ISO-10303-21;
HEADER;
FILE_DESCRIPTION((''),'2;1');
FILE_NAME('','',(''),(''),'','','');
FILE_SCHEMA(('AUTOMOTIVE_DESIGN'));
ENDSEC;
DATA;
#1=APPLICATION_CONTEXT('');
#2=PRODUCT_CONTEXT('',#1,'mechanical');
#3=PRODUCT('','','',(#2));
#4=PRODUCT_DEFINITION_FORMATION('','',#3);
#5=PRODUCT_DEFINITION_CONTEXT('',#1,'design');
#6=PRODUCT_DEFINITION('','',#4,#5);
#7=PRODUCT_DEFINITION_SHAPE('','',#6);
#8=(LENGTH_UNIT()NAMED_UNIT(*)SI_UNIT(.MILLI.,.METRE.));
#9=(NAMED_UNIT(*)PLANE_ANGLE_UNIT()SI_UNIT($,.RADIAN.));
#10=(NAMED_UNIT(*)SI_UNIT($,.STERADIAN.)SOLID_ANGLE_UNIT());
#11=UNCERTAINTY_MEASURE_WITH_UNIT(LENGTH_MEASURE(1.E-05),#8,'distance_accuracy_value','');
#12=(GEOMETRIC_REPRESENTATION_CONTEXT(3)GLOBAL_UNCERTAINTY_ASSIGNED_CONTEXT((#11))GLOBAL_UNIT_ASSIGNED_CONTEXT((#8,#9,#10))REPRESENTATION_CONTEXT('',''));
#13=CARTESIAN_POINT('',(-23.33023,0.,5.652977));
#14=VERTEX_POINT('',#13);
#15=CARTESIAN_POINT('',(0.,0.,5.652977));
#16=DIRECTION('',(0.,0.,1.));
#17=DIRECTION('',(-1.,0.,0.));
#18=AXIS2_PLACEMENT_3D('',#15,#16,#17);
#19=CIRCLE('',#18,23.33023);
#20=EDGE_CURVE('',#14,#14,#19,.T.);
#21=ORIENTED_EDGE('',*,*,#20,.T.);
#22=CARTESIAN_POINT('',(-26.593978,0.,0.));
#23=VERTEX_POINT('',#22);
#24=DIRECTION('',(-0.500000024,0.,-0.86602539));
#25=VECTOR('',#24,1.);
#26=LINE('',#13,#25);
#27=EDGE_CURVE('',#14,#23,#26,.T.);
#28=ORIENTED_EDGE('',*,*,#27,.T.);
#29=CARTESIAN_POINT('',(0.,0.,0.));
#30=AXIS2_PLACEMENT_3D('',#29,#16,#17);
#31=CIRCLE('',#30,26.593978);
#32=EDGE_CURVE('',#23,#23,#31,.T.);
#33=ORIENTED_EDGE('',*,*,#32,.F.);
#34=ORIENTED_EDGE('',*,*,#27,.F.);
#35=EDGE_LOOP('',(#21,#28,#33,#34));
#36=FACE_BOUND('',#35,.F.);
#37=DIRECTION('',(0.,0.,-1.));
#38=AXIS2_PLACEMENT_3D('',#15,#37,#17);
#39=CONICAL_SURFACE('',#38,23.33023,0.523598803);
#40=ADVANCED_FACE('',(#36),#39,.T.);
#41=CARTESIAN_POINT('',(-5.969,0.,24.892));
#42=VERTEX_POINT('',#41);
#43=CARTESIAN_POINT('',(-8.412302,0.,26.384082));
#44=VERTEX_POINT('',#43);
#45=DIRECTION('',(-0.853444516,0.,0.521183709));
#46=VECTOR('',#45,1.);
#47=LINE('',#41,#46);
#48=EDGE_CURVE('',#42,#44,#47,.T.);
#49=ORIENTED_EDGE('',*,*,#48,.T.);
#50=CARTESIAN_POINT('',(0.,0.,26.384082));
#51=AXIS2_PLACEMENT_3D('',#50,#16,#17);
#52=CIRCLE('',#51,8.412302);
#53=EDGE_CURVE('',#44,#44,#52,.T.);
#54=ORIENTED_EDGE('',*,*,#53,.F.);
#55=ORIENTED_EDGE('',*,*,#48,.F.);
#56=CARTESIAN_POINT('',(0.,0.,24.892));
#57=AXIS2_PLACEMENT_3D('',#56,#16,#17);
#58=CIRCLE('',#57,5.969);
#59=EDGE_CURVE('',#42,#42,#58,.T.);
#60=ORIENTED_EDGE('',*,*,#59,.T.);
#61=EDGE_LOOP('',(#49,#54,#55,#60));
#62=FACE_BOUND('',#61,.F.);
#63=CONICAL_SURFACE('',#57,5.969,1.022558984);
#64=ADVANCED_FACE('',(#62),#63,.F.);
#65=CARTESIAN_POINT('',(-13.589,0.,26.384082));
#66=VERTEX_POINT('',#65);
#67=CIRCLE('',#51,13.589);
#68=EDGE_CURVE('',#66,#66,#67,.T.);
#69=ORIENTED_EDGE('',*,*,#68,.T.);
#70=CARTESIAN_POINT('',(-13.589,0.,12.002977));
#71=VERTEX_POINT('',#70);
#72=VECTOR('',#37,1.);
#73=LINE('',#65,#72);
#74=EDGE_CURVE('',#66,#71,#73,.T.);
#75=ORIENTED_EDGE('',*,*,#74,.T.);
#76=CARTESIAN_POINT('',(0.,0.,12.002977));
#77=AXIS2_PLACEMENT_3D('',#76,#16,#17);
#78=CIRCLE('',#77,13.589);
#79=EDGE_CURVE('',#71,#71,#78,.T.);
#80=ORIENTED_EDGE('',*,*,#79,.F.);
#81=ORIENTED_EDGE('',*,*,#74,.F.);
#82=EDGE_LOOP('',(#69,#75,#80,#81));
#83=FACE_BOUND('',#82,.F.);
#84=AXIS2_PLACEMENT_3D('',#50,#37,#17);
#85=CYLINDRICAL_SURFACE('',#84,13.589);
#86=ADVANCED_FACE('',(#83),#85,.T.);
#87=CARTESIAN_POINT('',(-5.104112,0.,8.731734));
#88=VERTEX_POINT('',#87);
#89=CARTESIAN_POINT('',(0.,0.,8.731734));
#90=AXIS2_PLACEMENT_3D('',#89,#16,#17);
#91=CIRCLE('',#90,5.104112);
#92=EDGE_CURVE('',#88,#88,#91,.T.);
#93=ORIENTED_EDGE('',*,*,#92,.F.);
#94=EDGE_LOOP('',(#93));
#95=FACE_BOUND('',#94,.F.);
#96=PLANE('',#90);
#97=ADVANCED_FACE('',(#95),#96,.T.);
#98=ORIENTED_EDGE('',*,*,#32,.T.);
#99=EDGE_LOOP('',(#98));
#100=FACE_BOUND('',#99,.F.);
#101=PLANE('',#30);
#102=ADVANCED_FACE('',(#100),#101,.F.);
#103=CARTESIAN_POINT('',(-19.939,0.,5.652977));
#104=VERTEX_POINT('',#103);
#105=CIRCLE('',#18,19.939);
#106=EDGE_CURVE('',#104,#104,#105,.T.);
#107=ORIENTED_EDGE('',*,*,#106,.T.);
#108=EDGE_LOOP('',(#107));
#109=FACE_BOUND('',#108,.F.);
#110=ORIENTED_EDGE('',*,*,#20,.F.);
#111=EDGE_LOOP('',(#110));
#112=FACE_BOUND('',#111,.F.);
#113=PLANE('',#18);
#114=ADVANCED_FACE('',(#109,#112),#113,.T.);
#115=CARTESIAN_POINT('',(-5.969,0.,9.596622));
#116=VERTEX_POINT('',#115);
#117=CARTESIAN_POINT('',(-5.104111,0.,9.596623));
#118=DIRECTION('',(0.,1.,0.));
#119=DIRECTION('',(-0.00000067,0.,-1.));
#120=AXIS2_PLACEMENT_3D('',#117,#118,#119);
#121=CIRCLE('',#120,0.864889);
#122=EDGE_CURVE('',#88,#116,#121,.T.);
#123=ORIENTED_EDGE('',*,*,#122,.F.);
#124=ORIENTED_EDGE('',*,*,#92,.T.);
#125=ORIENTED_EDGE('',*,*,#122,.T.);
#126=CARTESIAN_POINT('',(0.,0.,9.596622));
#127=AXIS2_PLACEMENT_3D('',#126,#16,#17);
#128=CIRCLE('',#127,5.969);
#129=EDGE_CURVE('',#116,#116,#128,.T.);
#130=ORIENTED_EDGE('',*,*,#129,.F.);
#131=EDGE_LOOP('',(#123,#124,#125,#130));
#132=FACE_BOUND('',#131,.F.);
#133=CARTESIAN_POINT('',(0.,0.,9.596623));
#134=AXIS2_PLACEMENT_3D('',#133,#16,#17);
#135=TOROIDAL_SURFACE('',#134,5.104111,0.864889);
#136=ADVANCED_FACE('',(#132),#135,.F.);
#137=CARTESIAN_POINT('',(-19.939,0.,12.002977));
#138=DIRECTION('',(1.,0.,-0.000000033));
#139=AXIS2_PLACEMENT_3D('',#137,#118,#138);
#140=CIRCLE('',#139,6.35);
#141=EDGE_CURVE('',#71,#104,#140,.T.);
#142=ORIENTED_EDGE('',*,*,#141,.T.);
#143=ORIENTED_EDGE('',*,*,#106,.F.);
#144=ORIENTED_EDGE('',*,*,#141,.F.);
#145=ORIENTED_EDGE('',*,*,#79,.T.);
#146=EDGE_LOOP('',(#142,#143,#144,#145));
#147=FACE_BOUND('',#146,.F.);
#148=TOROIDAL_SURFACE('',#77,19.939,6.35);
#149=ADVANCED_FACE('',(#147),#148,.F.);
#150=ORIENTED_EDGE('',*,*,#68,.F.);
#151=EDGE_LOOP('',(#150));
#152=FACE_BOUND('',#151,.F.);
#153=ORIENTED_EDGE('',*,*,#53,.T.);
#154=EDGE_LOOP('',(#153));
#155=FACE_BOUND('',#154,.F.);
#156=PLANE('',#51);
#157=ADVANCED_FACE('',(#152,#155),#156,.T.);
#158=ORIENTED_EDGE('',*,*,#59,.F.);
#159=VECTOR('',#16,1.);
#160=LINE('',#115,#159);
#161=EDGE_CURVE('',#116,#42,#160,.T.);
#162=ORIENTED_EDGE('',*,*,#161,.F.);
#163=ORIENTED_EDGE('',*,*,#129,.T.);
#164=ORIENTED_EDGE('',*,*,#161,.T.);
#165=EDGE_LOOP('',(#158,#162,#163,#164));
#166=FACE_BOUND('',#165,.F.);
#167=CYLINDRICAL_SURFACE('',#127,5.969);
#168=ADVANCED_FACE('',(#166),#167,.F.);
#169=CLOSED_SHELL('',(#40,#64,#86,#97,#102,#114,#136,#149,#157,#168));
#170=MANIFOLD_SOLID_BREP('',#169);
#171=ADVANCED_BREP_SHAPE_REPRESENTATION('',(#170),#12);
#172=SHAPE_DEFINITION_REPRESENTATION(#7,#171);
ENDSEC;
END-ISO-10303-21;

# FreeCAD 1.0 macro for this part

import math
import FreeCAD as App
import Part
import Sketcher
Q = App.Units.Quantity

doc = App.newDocument("Part")
body = doc.addObject("PartDesign::Body", "Body")

# Sketch on XZ plane
sketch1 = body.newObject("Sketcher::SketchObject", "Sketch")
sketch1.AttachmentSupport = (doc.getObject("XZ_Plane"), [""])
sketch1.MapMode = "FlatFace"
sketch1.addGeometry([
    Part.LineSegment(App.Vector(-6, 9.6, 0), App.Vector(-6, 24.9, 0)),  # 0
    Part.LineSegment(App.Vector(-6, 24.9, 0), App.Vector(-8.4, 26.4, 0)),  # 1
    Part.LineSegment(App.Vector(-8.4, 26.4, 0), App.Vector(-13.6, 26.4, 0)),  # 2
    Part.LineSegment(App.Vector(-13.6, 26.4, 0), App.Vector(-13.6, 12, 0)),  # 3
    Part.ArcOfCircle(Part.Circle(App.Vector(-19.9, 12, 0), App.Vector(0, 0, 1), 6.4), math.radians(-90), math.radians(0)),  # 4
    Part.LineSegment(App.Vector(-19.9, 5.7, 0), App.Vector(-23.3, 5.7, 0)),  # 5
    Part.LineSegment(App.Vector(-23.3, 5.7, 0), App.Vector(-26.6, 0, 0)),  # 6
    Part.LineSegment(App.Vector(-26.6, 0, 0), App.Vector(0, 0, 0)),  # 7
    Part.LineSegment(App.Vector(0, 0, 0), App.Vector(0, 8.7, 0)),  # 8
    Part.LineSegment(App.Vector(0, 8.7, 0), App.Vector(-5.1, 8.7, 0)),  # 9
    Part.ArcOfCircle(Part.Circle(App.Vector(-5.1, 9.6, 0), App.Vector(0, 0, 1), 0.9), math.radians(-180), math.radians(-90)),  # 10
], False)
sketch1.addConstraint([
    Sketcher.Constraint("Coincident", 0, 2, 1, 1),
    Sketcher.Constraint("Coincident", 1, 2, 2, 1),
    Sketcher.Constraint("Coincident", 2, 2, 3, 1),
    Sketcher.Constraint("Tangent", 3, 2, 4, 2),
    Sketcher.Constraint("Tangent", 4, 1, 5, 1),
    Sketcher.Constraint("Coincident", 5, 2, 6, 1),
    Sketcher.Constraint("Coincident", 6, 2, 7, 1),
    Sketcher.Constraint("Coincident", 7, 2, 8, 1),
    Sketcher.Constraint("Coincident", 8, 2, 9, 1),
    Sketcher.Constraint("Tangent", 9, 2, 10, 2),
    Sketcher.Constraint("Tangent", 10, 1, 0, 1),
    Sketcher.Constraint("Vertical", 0),
    Sketcher.Constraint("Horizontal", 2),
    Sketcher.Constraint("Vertical", 3),
    Sketcher.Constraint("Horizontal", 5),
    Sketcher.Constraint("Horizontal", 7),
    Sketcher.Constraint("Vertical", 8),
    Sketcher.Constraint("Horizontal", 9),
    Sketcher.Constraint("Coincident", 7, 2, -1, 1),
    Sketcher.Constraint("Radius", 4, Q("0.25 in")),
    Sketcher.Constraint("Angle", 6, Q("-120.000002 deg")),
    Sketcher.Constraint("DistanceX", 2, 2, 0, 2, Q("0.3 in")),
    Sketcher.Constraint("DistanceY", -1, 1, 0, 2, Q("0.98 in")),
    Sketcher.Constraint("DistanceX", 4, 3, -1, 1, Q("0.785 in")),
    Sketcher.Constraint("Radius", 10, Q("0.864889 mm")),
    Sketcher.Constraint("DistanceX", 5, 2, 5, 1, Q("3.39123 mm")),
    Sketcher.Constraint("DistanceX", 7, 1, 7, 2, Q("26.593978 mm")),
    Sketcher.Constraint("DistanceX", 4, 3, 1, 2, Q("11.526698 mm")),
    Sketcher.Constraint("Distance", 1, Q("2.862872 mm")),
    Sketcher.Constraint("DistanceY", 0, 1, 0, 2, Q("15.295378 mm")),
])
revolution = body.newObject("PartDesign::Revolution", "Revolution")
revolution.Profile = sketch1
revolution.ReferenceAxis = (sketch1, ["V_Axis"])
revolution.Angle = 360

doc.recompute()
